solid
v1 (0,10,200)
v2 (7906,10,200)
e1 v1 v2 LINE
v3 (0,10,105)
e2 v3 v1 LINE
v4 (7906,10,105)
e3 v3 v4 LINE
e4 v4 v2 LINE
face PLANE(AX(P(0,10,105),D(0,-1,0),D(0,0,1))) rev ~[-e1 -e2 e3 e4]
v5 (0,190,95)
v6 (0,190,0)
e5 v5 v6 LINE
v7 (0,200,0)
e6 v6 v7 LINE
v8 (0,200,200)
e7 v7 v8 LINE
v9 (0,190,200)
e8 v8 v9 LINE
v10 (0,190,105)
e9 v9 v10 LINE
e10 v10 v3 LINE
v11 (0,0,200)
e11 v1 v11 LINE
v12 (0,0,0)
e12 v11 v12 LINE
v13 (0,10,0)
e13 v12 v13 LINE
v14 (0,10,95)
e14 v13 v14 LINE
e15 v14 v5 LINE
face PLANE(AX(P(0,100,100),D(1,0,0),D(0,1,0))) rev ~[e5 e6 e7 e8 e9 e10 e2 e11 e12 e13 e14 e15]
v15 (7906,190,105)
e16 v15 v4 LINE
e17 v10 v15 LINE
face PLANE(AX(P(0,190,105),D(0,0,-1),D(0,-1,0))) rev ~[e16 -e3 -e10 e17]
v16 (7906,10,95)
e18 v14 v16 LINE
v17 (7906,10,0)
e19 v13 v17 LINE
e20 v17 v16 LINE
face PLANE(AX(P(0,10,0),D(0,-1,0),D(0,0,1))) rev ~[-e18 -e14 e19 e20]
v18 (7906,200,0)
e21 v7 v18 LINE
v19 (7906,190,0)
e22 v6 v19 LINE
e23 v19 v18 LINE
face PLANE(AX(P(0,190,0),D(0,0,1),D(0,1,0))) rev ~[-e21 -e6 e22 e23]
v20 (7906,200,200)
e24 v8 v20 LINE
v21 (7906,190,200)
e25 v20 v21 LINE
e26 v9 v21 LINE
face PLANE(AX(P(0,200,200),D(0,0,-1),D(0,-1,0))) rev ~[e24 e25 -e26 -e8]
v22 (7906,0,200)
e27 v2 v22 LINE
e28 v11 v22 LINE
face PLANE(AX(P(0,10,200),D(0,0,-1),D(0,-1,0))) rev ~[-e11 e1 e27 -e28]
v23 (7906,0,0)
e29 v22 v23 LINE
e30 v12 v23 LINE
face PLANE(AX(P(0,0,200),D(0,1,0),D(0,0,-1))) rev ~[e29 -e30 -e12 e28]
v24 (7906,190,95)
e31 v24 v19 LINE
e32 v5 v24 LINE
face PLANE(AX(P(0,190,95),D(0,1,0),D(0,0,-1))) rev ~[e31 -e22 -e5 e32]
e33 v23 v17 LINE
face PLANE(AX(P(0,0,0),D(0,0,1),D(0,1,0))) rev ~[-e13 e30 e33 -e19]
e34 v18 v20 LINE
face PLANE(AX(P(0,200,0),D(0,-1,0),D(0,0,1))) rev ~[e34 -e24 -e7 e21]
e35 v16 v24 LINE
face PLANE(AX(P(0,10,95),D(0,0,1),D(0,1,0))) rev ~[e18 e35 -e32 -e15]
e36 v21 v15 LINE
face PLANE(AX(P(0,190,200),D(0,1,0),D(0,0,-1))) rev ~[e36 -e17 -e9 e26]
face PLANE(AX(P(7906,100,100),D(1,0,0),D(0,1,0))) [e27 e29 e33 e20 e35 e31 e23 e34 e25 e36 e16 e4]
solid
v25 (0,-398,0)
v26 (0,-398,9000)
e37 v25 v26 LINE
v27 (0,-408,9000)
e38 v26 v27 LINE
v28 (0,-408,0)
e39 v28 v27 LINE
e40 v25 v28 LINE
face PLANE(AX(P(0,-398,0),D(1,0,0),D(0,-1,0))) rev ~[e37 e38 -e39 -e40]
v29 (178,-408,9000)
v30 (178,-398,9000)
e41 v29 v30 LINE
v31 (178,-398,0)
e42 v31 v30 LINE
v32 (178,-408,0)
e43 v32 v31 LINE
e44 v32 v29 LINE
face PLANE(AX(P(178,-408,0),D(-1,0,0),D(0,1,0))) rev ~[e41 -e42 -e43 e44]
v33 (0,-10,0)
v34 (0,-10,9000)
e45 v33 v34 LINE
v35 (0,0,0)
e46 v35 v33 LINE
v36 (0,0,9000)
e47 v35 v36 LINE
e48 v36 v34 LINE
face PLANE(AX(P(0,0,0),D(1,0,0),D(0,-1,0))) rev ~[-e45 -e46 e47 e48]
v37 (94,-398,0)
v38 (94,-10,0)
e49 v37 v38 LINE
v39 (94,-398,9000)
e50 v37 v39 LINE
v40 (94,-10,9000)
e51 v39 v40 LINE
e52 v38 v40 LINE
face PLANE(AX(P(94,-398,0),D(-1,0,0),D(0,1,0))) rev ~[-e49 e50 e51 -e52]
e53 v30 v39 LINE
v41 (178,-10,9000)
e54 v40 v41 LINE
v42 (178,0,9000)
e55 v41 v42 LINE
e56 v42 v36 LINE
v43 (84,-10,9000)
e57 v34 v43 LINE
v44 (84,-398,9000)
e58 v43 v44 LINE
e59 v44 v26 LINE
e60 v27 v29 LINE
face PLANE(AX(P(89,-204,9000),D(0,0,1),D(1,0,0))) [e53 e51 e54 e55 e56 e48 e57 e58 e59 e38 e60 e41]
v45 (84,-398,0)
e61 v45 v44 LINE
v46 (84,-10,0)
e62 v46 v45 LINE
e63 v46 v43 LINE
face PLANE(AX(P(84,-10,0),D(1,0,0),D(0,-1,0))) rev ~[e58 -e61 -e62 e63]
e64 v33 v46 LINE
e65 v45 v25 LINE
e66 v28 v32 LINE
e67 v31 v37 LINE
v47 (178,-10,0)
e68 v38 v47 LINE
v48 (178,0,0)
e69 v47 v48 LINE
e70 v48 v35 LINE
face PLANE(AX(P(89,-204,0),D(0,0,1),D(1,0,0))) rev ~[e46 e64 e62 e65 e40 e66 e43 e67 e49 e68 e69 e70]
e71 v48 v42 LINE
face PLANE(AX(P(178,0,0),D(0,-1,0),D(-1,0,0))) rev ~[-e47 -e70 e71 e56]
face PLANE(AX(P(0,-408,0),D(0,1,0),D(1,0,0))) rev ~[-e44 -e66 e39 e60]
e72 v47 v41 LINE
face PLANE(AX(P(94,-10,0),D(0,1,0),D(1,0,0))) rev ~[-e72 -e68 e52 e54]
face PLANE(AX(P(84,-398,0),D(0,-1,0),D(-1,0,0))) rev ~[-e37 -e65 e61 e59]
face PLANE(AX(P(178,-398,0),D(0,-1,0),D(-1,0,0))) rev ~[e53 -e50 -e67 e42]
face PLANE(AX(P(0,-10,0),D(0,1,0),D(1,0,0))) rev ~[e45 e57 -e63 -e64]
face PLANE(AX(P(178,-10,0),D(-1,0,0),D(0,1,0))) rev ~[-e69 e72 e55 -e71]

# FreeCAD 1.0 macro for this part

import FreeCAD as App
import Part
import Sketcher

V = App.Vector


def add_polygon(sketch, points):
    """Adds a closed chain of lines whose ends are joined by coincident constraints."""
    first, n = sketch.GeometryCount, len(points)
    for a, b in zip(points, points[1:] + points[:1]):
        sketch.addGeometry(Part.LineSegment(App.Vector(*a, 0), App.Vector(*b, 0)), False)
    for i in range(n):
        sketch.addConstraint(Sketcher.Constraint("Coincident", first + i, 2, first + (i + 1) % n, 1))

doc = App.newDocument("Part")
body = doc.addObject("PartDesign::Body", "Body")

# Sketch on XY plane
sketch1 = body.newObject("Sketcher::SketchObject", "Sketch")
sketch1.AttachmentSupport = (doc.getObject("XY_Plane"), [""])
sketch1.MapMode = "FlatFace"
add_polygon(sketch1, [(178, 0), (0, 0), (0, -10), (84, -10), (84, -398), (0, -398), (0, -408), (178, -408), (178, -398), (94, -398), (94, -10), (178, -10)])  # lines 0-11
sketch1.addConstraint([
    Sketcher.Constraint("Horizontal", 0),
    Sketcher.Constraint("Vertical", 1),
    Sketcher.Constraint("Horizontal", 2),
    Sketcher.Constraint("Vertical", 3),
    Sketcher.Constraint("Horizontal", 4),
    Sketcher.Constraint("Vertical", 5),
    Sketcher.Constraint("Horizontal", 6),
    Sketcher.Constraint("Vertical", 7),
    Sketcher.Constraint("Horizontal", 8),
    Sketcher.Constraint("Vertical", 9),
    Sketcher.Constraint("Horizontal", 10),
    Sketcher.Constraint("Vertical", 11),
    Sketcher.Constraint("Coincident", 0, 2, -1, 1),
    Sketcher.Constraint("PointOnObject", 4, 2, -2),
    Sketcher.Constraint("Horizontal", 4, 2, 7, 2),
    Sketcher.Constraint("Horizontal", 2, 2, 9, 2),
    Sketcher.Constraint("Vertical", 7, 2, 10, 2),
    Sketcher.Constraint("Equal", 4, 8),
    Sketcher.Constraint("Equal", 1, 5),
    Sketcher.Constraint("DistanceX", 0, 2, 0, 1, 178.0),
    Sketcher.Constraint("DistanceX", 2, 1, 2, 2, 84.0),
    Sketcher.Constraint("DistanceY", 1, 2, 1, 1, 10.0),
    Sketcher.Constraint("DistanceY", 3, 2, 3, 1, 388.0),
])
pad1 = body.newObject("PartDesign::Pad", "Pad")
pad1.Profile = sketch1
pad1.Length = 9000
body2 = doc.addObject("PartDesign::Body", "Body001")

# Sketch on YZ plane
sketch2 = body2.newObject("Sketcher::SketchObject", "Sketch001")
sketch2.AttachmentSupport = (doc.getObject("YZ_Plane001"), [""])
sketch2.MapMode = "FlatFace"
add_polygon(sketch2, [(0, 200), (0, 0), (10, 0), (10, 95), (190, 95), (190, 0), (200, 0), (200, 200), (190, 200), (190, 105), (10, 105), (10, 200)])  # lines 0-11
sketch2.addConstraint([
    Sketcher.Constraint("Vertical", 0),
    Sketcher.Constraint("Horizontal", 1),
    Sketcher.Constraint("Vertical", 2),
    Sketcher.Constraint("Horizontal", 3),
    Sketcher.Constraint("Vertical", 4),
    Sketcher.Constraint("Horizontal", 5),
    Sketcher.Constraint("Vertical", 6),
    Sketcher.Constraint("Horizontal", 7),
    Sketcher.Constraint("Vertical", 8),
    Sketcher.Constraint("Horizontal", 9),
    Sketcher.Constraint("Vertical", 10),
    Sketcher.Constraint("Horizontal", 11),
    Sketcher.Constraint("Coincident", 0, 2, -1, 1),
    Sketcher.Constraint("PointOnObject", 4, 2, -1),
    Sketcher.Constraint("Horizontal", 7, 2, 10, 2),
    Sketcher.Constraint("Vertical", 4, 2, 7, 2),
    Sketcher.Constraint("Vertical", 2, 2, 9, 2),
    Sketcher.Constraint("Equal", 1, 5),
    Sketcher.Constraint("Equal", 4, 8),
    Sketcher.Constraint("DistanceX", 1, 1, 1, 2, 10.0),
    Sketcher.Constraint("DistanceX", 3, 1, 3, 2, 180.0),
    Sketcher.Constraint("DistanceY", 0, 2, 0, 1, 200.0),
    Sketcher.Constraint("DistanceY", 2, 1, 2, 2, 95.0),
])
pad2 = body2.newObject("PartDesign::Pad", "Pad001")
pad2.Profile = sketch2
pad2.Length = 7906

doc.recompute()
